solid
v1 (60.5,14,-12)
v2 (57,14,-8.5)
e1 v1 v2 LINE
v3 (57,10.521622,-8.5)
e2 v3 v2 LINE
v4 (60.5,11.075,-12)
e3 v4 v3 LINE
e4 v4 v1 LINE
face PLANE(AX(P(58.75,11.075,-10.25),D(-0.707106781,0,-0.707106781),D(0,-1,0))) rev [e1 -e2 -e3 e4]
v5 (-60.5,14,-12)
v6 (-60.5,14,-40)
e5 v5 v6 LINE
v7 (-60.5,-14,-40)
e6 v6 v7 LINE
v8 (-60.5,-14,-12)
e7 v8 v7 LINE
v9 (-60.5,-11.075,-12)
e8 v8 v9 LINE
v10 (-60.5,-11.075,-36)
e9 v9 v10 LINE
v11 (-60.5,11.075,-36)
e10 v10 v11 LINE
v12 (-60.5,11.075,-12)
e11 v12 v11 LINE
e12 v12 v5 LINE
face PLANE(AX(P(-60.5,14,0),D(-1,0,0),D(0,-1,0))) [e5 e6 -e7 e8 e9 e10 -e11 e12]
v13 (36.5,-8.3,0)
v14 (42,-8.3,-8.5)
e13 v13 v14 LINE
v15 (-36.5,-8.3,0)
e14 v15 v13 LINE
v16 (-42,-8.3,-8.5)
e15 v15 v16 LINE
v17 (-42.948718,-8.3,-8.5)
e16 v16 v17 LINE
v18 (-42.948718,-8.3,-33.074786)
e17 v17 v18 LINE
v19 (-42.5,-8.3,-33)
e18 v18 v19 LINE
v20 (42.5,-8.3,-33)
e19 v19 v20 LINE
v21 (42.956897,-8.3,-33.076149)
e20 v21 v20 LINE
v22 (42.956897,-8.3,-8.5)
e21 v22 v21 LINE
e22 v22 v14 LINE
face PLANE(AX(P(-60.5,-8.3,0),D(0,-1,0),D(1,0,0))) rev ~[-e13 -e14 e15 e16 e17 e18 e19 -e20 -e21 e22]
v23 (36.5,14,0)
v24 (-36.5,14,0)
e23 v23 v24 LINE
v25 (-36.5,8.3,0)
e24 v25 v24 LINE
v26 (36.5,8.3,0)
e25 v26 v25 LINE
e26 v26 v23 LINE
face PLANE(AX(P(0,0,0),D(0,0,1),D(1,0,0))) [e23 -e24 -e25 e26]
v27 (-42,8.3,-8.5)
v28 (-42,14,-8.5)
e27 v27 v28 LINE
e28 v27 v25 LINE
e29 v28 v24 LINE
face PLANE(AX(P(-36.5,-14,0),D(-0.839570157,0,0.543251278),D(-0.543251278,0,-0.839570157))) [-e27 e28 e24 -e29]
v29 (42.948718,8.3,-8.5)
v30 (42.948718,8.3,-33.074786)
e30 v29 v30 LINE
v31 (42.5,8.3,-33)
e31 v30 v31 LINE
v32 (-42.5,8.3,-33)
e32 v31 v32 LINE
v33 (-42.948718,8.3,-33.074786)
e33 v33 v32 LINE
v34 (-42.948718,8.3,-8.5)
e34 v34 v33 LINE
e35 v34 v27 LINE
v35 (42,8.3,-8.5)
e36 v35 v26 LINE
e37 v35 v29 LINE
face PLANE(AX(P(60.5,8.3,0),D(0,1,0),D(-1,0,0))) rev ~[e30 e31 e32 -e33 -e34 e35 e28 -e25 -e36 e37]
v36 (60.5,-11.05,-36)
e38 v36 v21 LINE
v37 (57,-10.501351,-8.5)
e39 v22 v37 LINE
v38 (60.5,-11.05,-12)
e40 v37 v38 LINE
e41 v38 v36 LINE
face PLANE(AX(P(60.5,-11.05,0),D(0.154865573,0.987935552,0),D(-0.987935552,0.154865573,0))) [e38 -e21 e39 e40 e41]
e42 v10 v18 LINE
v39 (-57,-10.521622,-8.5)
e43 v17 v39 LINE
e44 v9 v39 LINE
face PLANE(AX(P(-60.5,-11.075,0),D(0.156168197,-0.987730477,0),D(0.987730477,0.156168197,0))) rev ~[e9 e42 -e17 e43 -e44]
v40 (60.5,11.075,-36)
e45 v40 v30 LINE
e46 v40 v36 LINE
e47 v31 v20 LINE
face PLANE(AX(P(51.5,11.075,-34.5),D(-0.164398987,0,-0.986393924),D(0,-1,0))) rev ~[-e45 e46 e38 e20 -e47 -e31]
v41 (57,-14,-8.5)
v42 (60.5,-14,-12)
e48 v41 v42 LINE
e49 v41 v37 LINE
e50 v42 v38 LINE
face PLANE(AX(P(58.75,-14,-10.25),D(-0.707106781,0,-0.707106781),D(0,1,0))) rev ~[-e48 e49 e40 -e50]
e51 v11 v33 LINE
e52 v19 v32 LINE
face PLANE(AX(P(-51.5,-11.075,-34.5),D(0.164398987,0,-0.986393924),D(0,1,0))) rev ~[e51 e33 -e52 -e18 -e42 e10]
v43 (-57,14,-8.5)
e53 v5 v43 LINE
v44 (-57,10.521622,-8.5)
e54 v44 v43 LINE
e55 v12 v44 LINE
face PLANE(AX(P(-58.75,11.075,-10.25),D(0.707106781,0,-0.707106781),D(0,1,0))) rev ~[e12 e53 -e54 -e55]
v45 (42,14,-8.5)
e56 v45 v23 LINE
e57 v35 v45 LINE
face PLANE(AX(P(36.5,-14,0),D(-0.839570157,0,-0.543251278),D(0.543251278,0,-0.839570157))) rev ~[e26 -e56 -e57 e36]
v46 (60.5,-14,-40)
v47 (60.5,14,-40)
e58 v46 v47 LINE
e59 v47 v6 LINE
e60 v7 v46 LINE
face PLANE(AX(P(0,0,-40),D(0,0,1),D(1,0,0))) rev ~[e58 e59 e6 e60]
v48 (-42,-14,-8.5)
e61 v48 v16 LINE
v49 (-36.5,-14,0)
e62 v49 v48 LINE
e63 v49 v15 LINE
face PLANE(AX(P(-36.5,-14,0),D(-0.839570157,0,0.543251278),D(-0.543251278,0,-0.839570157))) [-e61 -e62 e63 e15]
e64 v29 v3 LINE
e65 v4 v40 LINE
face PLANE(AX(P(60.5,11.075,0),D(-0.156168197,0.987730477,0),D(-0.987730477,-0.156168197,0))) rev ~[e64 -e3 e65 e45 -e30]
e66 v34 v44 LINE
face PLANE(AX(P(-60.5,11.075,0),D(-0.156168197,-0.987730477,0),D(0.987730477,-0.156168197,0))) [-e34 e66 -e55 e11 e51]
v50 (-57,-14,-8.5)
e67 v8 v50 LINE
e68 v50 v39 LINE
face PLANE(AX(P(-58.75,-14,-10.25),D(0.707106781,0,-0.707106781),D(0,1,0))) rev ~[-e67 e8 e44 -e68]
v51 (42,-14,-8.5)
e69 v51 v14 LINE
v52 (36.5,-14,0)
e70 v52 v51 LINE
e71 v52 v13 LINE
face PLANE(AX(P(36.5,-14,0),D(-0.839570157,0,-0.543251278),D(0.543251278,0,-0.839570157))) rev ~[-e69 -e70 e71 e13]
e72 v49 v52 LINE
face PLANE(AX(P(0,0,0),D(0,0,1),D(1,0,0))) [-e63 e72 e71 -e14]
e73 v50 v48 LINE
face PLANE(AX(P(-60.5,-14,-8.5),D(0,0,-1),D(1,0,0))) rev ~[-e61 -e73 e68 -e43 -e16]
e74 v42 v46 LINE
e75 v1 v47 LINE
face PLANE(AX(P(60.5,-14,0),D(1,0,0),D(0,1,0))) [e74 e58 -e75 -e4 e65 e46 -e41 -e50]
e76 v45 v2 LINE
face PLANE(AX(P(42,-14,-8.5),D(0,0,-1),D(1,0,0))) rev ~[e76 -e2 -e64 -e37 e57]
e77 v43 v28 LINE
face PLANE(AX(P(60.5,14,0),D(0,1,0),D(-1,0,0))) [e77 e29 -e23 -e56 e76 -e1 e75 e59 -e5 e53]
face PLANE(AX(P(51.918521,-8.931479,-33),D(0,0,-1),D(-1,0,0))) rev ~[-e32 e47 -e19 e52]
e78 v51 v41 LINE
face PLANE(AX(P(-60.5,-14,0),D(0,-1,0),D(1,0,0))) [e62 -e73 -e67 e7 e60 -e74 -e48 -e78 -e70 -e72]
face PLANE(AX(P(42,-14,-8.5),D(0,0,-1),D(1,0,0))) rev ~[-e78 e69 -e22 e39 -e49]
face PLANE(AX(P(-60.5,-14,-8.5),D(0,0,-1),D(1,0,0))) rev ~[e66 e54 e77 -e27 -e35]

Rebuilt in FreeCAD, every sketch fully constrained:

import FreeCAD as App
import Part
import Sketcher
from FreeCAD import Vector
Q = App.Units.Quantity


def edges_at(feature, points):
    """Names of the edges that pass closest to the given points."""
    edges = feature.Shape.Edges
    near = lambda p: min(range(len(edges)), key=lambda i: edges[i].distToShape(Part.Vertex(*p))[0])
    return sorted({f"Edge{near(p) + 1}" for p in points})


def add_polygon(sketch, points):
    """Adds a closed chain of lines whose ends are joined by coincident constraints."""
    first, n = sketch.GeometryCount, len(points)
    for a, b in zip(points, points[1:] + points[:1]):
        sketch.addGeometry(Part.LineSegment(App.Vector(*a, 0), App.Vector(*b, 0)), False)
    for i in range(n):
        sketch.addConstraint(Sketcher.Constraint("Coincident", first + i, 2, first + (i + 1) % n, 1))

doc = App.newDocument("Part")
params = doc.addObject("Spreadsheet::Sheet", "Params")
for row, (alias, value) in enumerate([
    ("sketch1_width", "121 mm"),
    ("sketch1_height", "28 mm"),
    ("pad1_length", "40 mm"),
    ("sketch2_width", "18.5 mm"),
    ("sketch2_height", "8.5 mm"),
    ("pocket1_length", "28 mm"),
    ("sketch3_width", "18.5 mm"),
    ("sketch3_height", "2.9 mm"),
    ("pocket2_length", "33 mm"),
    ("sketch4_width", "121 mm"),
    ("sketch4_height", "16.6 mm"),
    ("pocket3_length", "33 mm"),
    ("chamfer_size", "3 mm"),
    ("chamfer_size2", "18 mm"),
    ("chamfer2_size", "3 mm"),
    ("chamfer2_size2", "18 mm"),
    ("sketch5_width", "5.5 mm"),
    ("sketch5_height", "8.5 mm"),
    ("pocket4_length", "40 mm"),
    ("chamfer3_size", "3.5 mm"),
    ("chamfer4_size", "3.5 mm"),
], start=1):
    params.set(f"A{row}", alias)
    params.set(f"B{row}", "=" + value)
    params.setAlias(f"B{row}", alias)

body = doc.addObject("PartDesign::Body", "Body")

sketch1 = body.newObject("Sketcher::SketchObject", "Sketch")
sketch1.AttachmentSupport = (doc.getObject("XY_Plane"), [""])
sketch1.MapMode = "FlatFace"
add_polygon(sketch1, [(-60, 14), (-60, -14), (60, -14), (60, 14)])
sketch1.addConstraint(Sketcher.Constraint("Vertical", 0))
sketch1.addConstraint(Sketcher.Constraint("Horizontal", 1))
sketch1.addConstraint(Sketcher.Constraint("Vertical", 2))
sketch1.addConstraint(Sketcher.Constraint("Horizontal", 3))
sketch1.addConstraint(Sketcher.Constraint("Symmetric", 0, 2, 2, 2, -1, 1))
sketch1.addConstraint(Sketcher.Constraint("DistanceX", 1, 1, 1, 2, Q("121 mm")))
sketch1.addConstraint(Sketcher.Constraint("DistanceY", 0, 2, 0, 1, Q("28 mm")))
sketch1.setExpression("Constraints[9]", "Params.sketch1_width")
sketch1.setExpression("Constraints[10]", "Params.sketch1_height")
pad1 = body.newObject("PartDesign::Pad", "Pad")
pad1.Profile = sketch1
pad1.setExpression("Length", "Params.pad1_length")
pad1.Reversed = True

sketch2 = body.newObject("Sketcher::SketchObject", "Sketch001")
sketch2.AttachmentSupport = (doc.getObject("XZ_Plane"), [""])
sketch2.MapMode = "FlatFace"
sketch2.AttachmentOffset = App.Placement(Vector(0, 0, 14), App.Rotation())
add_polygon(sketch2, [(60, -8), (60, 0), (42, 0), (42, -8)])
add_polygon(sketch2, [(-60, 0), (-60, -8), (-42, -8), (-42, 0)])
sketch2.addConstraint(Sketcher.Constraint("Vertical", 0))
sketch2.addConstraint(Sketcher.Constraint("Horizontal", 1))
sketch2.addConstraint(Sketcher.Constraint("Vertical", 2))
sketch2.addConstraint(Sketcher.Constraint("Horizontal", 3))
sketch2.addConstraint(Sketcher.Constraint("Vertical", 4))
sketch2.addConstraint(Sketcher.Constraint("Horizontal", 5))
sketch2.addConstraint(Sketcher.Constraint("Vertical", 6))
sketch2.addConstraint(Sketcher.Constraint("Horizontal", 7))
sketch2.addConstraint(Sketcher.Constraint("Symmetric", 1, 2, 6, 2, -1, 1))
sketch2.addConstraint(Sketcher.Constraint("Symmetric", 3, 2, 4, 2, -2))
sketch2.addConstraint(Sketcher.Constraint("PointOnObject", 0, 2, -1))
sketch2.addConstraint(Sketcher.Constraint("DistanceX", 1, 2, 1, 1, Q("18.5 mm")))
sketch2.addConstraint(Sketcher.Constraint("DistanceY", 0, 1, 0, 2, Q("8.5 mm")))
sketch2.addConstraint(Sketcher.Constraint("DistanceX", -1, 1, 1, 2, Q("42 mm")))
sketch2.setExpression("Constraints[19]", "Params.sketch2_width")
sketch2.setExpression("Constraints[20]", "Params.sketch2_height")
pocket1 = body.newObject("PartDesign::Pocket", "Pocket")
pocket1.Profile = sketch2
pocket1.setExpression("Length", "Params.pocket1_length")

sketch3 = body.newObject("Sketcher::SketchObject", "Sketch002")
sketch3.AttachmentSupport = (doc.getObject("XY_Plane"), [""])
sketch3.MapMode = "FlatFace"
add_polygon(sketch3, [(42, 8.2), (60.5, 8.2), (60.5, 11.1)])
add_polygon(sketch3, [(60.5, -11.1), (60.5, -8.2), (42, -8.2)])
add_polygon(sketch3, [(-60.5, 11.1), (-60.5, 8.2), (-42, 8.2)])
add_polygon(sketch3, [(-42, -8.2), (-60.5, -8.2), (-60.5, -11.1)])
sketch3.addConstraint(Sketcher.Constraint("Horizontal", 0))
sketch3.addConstraint(Sketcher.Constraint("Vertical", 1))
sketch3.addConstraint(Sketcher.Constraint("Vertical", 3))
sketch3.addConstraint(Sketcher.Constraint("Horizontal", 4))
sketch3.addConstraint(Sketcher.Constraint("Vertical", 6))
sketch3.addConstraint(Sketcher.Constraint("Horizontal", 7))
sketch3.addConstraint(Sketcher.Constraint("Horizontal", 9))
sketch3.addConstraint(Sketcher.Constraint("Vertical", 10))
sketch3.addConstraint(Sketcher.Constraint("Symmetric", 3, 2, 6, 2, -1, 1))
sketch3.addConstraint(Sketcher.Constraint("Symmetric", 0, 2, 9, 2, -1, 1))
sketch3.addConstraint(Sketcher.Constraint("Symmetric", 0, 2, 6, 2, -2))
sketch3.addConstraint(Sketcher.Constraint("Parallel", 2, 11))
sketch3.addConstraint(Sketcher.Constraint("Horizontal", 1, 2, 8, 2))
sketch3.addConstraint(Sketcher.Constraint("Vertical", 2, 2, 4, 2))
sketch3.addConstraint(Sketcher.Constraint("Vertical", 7, 2, 11, 2))
sketch3.addConstraint(Sketcher.Constraint("Equal", 4, 7))
sketch3.addConstraint(Sketcher.Constraint("DistanceX", 0, 1, 0, 2, Q("18.5 mm")))
sketch3.addConstraint(Sketcher.Constraint("DistanceY", 3, 1, 3, 2, Q("2.9 mm")))
sketch3.addConstraint(Sketcher.Constraint("DistanceX", -1, 1, 2, 2, Q("42 mm")))
sketch3.addConstraint(Sketcher.Constraint("DistanceY", 3, 2, 0, 2, Q("16.3 mm")))
sketch3.addConstraint(Sketcher.Constraint("DistanceY", 1, 1, 1, 2, Q("2.925 mm")))
sketch3.setExpression("Constraints[28]", "Params.sketch3_width")
sketch3.setExpression("Constraints[29]", "Params.sketch3_height")
pocket2 = body.newObject("PartDesign::Pocket", "Pocket001")
pocket2.Profile = sketch3
pocket2.setExpression("Length", "Params.pocket2_length")

sketch4 = body.newObject("Sketcher::SketchObject", "Sketch003")
sketch4.AttachmentSupport = (doc.getObject("XY_Plane"), [""])
sketch4.MapMode = "FlatFace"
add_polygon(sketch4, [(-60, 8), (-60, -8), (60, -8), (60, 8)])
sketch4.addConstraint(Sketcher.Constraint("Vertical", 0))
sketch4.addConstraint(Sketcher.Constraint("Horizontal", 1))
sketch4.addConstraint(Sketcher.Constraint("Vertical", 2))
sketch4.addConstraint(Sketcher.Constraint("Horizontal", 3))
sketch4.addConstraint(Sketcher.Constraint("Symmetric", 0, 2, 2, 2, -1, 1))
sketch4.addConstraint(Sketcher.Constraint("DistanceX", 1, 1, 1, 2, Q("121 mm")))
sketch4.addConstraint(Sketcher.Constraint("DistanceY", 0, 2, 0, 1, Q("16.6 mm")))
sketch4.setExpression("Constraints[9]", "Params.sketch4_width")
sketch4.setExpression("Constraints[10]", "Params.sketch4_height")
pocket3 = body.newObject("PartDesign::Pocket", "Pocket002")
pocket3.Profile = sketch4
pocket3.setExpression("Length", "Params.pocket3_length")
doc.recompute()

chamfer = body.newObject("PartDesign::Chamfer", "Chamfer")
chamfer.Base = (pocket3, edges_at(pocket3, [(-60.5, 0, -33)]))
chamfer.ChamferType = "Two distances"
chamfer.setExpression("Size", "Params.chamfer_size")
chamfer.setExpression("Size2", "Params.chamfer_size2")
doc.recompute()

chamfer2 = body.newObject("PartDesign::Chamfer", "Chamfer001")
chamfer2.Base = (chamfer, edges_at(chamfer, [(60.5, 0.013, -33)]))
chamfer2.ChamferType = "Two distances"
chamfer2.setExpression("Size", "Params.chamfer2_size")
chamfer2.setExpression("Size2", "Params.chamfer2_size2")
chamfer2.FlipDirection = True

sketch5 = body.newObject("Sketcher::SketchObject", "Sketch004")
sketch5.AttachmentSupport = (doc.getObject("XZ_Plane"), [""])
sketch5.MapMode = "FlatFace"
sketch5.AttachmentOffset = App.Placement(Vector(0, 0, 14), App.Rotation())
add_polygon(sketch5, [(-42, -8), (-36, 0), (-42, 0)])
add_polygon(sketch5, [(42, 0), (36, 0), (42, -8)])
sketch5.addConstraint(Sketcher.Constraint("Horizontal", 1))
sketch5.addConstraint(Sketcher.Constraint("Vertical", 2))
sketch5.addConstraint(Sketcher.Constraint("Horizontal", 3))
sketch5.addConstraint(Sketcher.Constraint("Vertical", 5))
sketch5.addConstraint(Sketcher.Constraint("Symmetric", 0, 2, 3, 2, -1, 1))
sketch5.addConstraint(Sketcher.Constraint("Symmetric", 2, 2, 4, 2, -2))
sketch5.addConstraint(Sketcher.Constraint("PointOnObject", 0, 2, -1))
sketch5.addConstraint(Sketcher.Constraint("DistanceX", 1, 2, 1, 1, Q("5.5 mm")))
sketch5.addConstraint(Sketcher.Constraint("DistanceY", 2, 2, 2, 1, Q("8.5 mm")))
sketch5.addConstraint(Sketcher.Constraint("DistanceX", 1, 2, -1, 1, Q("42 mm")))
sketch5.setExpression("Constraints[13]", "Params.sketch5_width")
sketch5.setExpression("Constraints[14]", "Params.sketch5_height")
pocket4 = body.newObject("PartDesign::Pocket", "Pocket003")
pocket4.Profile = sketch5
pocket4.setExpression("Length", "Params.pocket4_length")
doc.recompute()

chamfer3 = body.newObject("PartDesign::Chamfer", "Chamfer002")
chamfer3.Base = (pocket4, edges_at(pocket4, [(60.5, -12.525, -8.5)]))
chamfer3.setExpression("Size", "Params.chamfer3_size")
doc.recompute()

chamfer4 = body.newObject("PartDesign::Chamfer", "Chamfer003")
chamfer4.Base = (chamfer3, edges_at(chamfer3, [(-60.5, -12.537, -8.5), (-60.5, 12.537, -8.5), (60.5, 12.537, -8.5)]))
chamfer4.setExpression("Size", "Params.chamfer4_size")

doc.recompute()
